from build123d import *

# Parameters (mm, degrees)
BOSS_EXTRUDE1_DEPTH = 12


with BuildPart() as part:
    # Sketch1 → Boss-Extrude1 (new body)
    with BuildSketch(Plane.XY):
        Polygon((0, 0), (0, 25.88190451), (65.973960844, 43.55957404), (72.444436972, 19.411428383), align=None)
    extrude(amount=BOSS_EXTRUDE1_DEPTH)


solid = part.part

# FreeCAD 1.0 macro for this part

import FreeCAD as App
import Part
import Sketcher

V = App.Vector
Q = App.Units.Quantity

doc = App.newDocument("Part")
body = doc.addObject("PartDesign::Body", "Body")

sketch1 = doc.addObject("Sketcher::SketchObject", "Sketch")
body.addObject(sketch1)
sketch1.AttachmentSupport = (doc.XY_Plane, [""])
sketch1.MapMode = "FlatFace"
sketch1.addGeometry([
    Part.LineSegment(V(0, 26, 0), V(0, 0, 0)),
    Part.LineSegment(V(0, 0, 0), V(72, 19, 0)),
    Part.LineSegment(V(72, 19, 0), V(66, 44, 0)),
    Part.LineSegment(V(66, 44, 0), V(0, 26, 0)),
], False)
sketch1.addConstraint([
    Sketcher.Constraint("Coincident", 0, 2, 1, 1),
    Sketcher.Constraint("Coincident", 1, 2, 2, 1),
    Sketcher.Constraint("Coincident", 2, 2, 3, 1),
    Sketcher.Constraint("Coincident", 3, 2, 0, 1),
    Sketcher.Constraint("Vertical", 0),
    Sketcher.Constraint("Coincident", 0, 2, -1, 1),
    Sketcher.Constraint("Perpendicular", 1, 2),
    Sketcher.Constraint("Perpendicular", 2, 3),
    Sketcher.Constraint("Angle", 1, Q("15 deg")),
    Sketcher.Constraint("Distance", 1, 75.0),
    Sketcher.Constraint("Distance", 2, 25.0),
])
pad1 = doc.addObject("PartDesign::Pad", "Pad")
body.addObject(pad1)
pad1.Profile = sketch1
pad1.Length = 12

doc.recompute()
